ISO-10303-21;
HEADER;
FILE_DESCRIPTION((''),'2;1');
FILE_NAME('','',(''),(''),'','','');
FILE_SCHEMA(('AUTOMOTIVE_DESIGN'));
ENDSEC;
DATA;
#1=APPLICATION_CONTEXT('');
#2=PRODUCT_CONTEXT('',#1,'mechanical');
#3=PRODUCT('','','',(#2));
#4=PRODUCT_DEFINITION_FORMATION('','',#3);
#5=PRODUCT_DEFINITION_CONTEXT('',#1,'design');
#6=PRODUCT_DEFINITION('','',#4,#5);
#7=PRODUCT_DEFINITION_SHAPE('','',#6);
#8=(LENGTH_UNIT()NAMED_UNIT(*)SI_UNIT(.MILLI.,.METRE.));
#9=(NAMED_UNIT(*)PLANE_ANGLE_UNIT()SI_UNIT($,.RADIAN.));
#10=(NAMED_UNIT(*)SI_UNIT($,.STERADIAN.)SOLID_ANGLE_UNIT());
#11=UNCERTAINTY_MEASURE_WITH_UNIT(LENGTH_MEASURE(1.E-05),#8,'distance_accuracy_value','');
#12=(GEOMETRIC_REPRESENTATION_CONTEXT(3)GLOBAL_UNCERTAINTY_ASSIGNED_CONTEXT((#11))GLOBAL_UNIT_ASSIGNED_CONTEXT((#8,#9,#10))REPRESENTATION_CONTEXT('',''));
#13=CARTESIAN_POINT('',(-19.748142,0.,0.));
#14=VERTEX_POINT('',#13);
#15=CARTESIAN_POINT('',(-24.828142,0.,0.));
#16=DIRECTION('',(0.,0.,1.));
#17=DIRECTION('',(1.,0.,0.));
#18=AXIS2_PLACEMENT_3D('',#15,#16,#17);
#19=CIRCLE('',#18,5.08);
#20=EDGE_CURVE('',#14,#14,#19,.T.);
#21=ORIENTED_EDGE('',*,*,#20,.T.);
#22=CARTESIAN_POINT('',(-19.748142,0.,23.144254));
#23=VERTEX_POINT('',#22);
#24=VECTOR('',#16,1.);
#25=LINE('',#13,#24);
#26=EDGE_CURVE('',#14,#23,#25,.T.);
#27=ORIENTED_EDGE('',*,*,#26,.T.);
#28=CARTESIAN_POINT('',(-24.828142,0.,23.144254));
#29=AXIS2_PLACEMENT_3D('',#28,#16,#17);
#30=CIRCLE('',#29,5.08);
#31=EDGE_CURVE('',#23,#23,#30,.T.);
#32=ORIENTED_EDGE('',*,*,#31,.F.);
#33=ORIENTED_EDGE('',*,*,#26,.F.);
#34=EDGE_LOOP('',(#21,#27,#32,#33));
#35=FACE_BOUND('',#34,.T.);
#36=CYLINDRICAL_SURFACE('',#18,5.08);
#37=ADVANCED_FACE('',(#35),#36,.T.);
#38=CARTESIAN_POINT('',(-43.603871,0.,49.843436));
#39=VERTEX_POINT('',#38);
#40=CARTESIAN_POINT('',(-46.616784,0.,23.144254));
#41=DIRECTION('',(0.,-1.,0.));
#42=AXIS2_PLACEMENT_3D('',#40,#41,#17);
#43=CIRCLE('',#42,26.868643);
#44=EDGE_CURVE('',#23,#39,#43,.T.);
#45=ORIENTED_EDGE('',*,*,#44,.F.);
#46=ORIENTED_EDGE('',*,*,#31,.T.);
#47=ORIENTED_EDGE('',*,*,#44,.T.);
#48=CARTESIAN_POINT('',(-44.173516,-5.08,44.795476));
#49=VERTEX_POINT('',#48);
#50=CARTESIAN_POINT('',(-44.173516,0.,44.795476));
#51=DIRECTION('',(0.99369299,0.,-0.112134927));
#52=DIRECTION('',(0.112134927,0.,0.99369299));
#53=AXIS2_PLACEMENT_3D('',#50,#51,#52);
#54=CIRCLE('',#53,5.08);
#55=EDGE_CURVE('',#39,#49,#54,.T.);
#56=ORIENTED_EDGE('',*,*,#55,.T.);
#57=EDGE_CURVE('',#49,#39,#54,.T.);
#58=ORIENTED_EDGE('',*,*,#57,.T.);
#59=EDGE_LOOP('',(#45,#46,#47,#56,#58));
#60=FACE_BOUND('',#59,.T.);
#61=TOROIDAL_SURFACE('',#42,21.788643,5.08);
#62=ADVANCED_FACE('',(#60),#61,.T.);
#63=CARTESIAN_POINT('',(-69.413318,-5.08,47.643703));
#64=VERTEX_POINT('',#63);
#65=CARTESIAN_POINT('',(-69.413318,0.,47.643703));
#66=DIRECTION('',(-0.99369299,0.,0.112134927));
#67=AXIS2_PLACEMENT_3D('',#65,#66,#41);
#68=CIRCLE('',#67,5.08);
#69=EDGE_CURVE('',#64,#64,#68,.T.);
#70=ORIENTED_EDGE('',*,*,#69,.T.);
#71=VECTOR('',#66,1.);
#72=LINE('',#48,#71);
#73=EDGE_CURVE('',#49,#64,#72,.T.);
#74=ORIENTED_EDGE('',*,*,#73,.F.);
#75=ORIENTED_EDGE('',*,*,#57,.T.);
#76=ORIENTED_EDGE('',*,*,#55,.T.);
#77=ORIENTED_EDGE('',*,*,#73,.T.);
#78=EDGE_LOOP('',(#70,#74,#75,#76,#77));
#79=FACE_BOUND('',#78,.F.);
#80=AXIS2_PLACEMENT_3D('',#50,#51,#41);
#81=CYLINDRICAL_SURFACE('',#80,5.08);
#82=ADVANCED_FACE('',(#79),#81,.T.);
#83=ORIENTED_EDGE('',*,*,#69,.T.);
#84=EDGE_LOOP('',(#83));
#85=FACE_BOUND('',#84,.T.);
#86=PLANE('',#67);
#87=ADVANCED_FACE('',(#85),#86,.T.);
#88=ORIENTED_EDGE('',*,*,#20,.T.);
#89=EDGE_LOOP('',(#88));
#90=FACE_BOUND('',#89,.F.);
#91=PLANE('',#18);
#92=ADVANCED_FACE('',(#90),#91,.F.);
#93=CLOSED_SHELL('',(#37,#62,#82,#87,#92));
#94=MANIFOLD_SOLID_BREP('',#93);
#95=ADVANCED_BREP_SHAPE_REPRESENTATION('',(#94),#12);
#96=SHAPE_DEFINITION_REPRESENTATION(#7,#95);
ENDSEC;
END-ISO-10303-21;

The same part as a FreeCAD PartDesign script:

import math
import FreeCAD as App
import Part
import Sketcher
from FreeCAD import Vector
Q = App.Units.Quantity

doc = App.newDocument("Part")
body = doc.addObject("PartDesign::Body", "Body")

# Sketch on XY plane
sketch1 = doc.addObject("Sketcher::SketchObject", "Sketch")
body.addObject(sketch1)
sketch1.AttachmentSupport = (doc.XY_Plane, [""])
sketch1.MapMode = "FlatFace"
sketch1.addGeometry(Part.Circle(Vector(-25, 0, 0), Vector(0, 0, 1), 5), False)
sketch1.addConstraint([
    Sketcher.Constraint("PointOnObject", 0, 3, -1),
    Sketcher.Constraint("Diameter", 0, Q("0.4 in")),
    Sketcher.Constraint("DistanceX", 0, 3, -1, 1, 24.828142),
])

# Sketch on XZ plane
sketch2 = doc.addObject("Sketcher::SketchObject", "Sketch001")
body.addObject(sketch2)
sketch2.AttachmentSupport = (doc.XZ_Plane, [""])
sketch2.MapMode = "FlatFace"
sketch2.addGeometry([
    Part.LineSegment(Vector(-25, 0, 0), Vector(-25, 23, 0)),
    Part.ArcOfCircle(Part.Circle(Vector(-47, 23, 0), Vector(0, 0, 1), 22), math.radians(0), math.radians(84)),
], False)
sketch2.addConstraint([
    Sketcher.Constraint("Tangent", 0, 2, 1, 1),
    Sketcher.Constraint("Vertical", 0),
    Sketcher.Constraint("PointOnObject", 0, 1, -1),
    Sketcher.Constraint("Radius", 1, 21.788643),
    Sketcher.Constraint("DistanceY", 0, 1, 0, 2, 23.144254),
    Sketcher.Constraint("DistanceX", 0, 1, -1, 1, 24.828142),
    Sketcher.Constraint("DistanceY", 1, 3, 1, 2, 21.651221),
])
doc.recompute()

additivepipe = doc.addObject("PartDesign::AdditivePipe", "AdditivePipe")
body.addObject(additivepipe)
additivepipe.Profile = sketch1
additivepipe.Spine = (sketch2, ["Edge1", "Edge2"])

# Sketch on an angled plane
sketch3 = doc.addObject("Sketcher::SketchObject", "Sketch002")
body.addObject(sketch3)
sketch3.Placement = App.Placement(Vector(-48.609524, 0, 5.485422), App.Rotation(Vector(0, -1, 0), Vector(0.112134927, 0, 0.99369299), Vector(-0.99369299, 0, 0.112134927), "ZXY"))
sketch3.addGeometry(Part.Circle(Vector(0, 40, 0), Vector(0, 0, 1), 5), False)
sketch3.addConstraint([
    Sketcher.Constraint("PointOnObject", 0, 3, -2),
    Sketcher.Constraint("Diameter", 0, Q("0.4 in")),
    Sketcher.Constraint("DistanceY", -1, 1, 0, 3, 39.559556),
])
pad1 = doc.addObject("PartDesign::Pad", "Pad")
body.addObject(pad1)
pad1.Profile = sketch3
pad1.Length = Q("1 in")

doc.recompute()
